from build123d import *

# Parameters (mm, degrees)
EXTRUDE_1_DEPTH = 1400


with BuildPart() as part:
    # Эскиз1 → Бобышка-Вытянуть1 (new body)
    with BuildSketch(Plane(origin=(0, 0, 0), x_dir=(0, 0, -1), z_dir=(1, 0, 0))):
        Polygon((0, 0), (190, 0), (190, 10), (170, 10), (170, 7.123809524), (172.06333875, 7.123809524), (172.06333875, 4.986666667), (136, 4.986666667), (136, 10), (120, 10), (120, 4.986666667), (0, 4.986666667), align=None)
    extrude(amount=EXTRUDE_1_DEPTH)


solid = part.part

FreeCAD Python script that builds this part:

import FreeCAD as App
import Part
import Sketcher

V = App.Vector
Q = App.Units.Quantity


def add_polygon(sketch, points):
    """Adds a closed chain of lines whose ends are joined by coincident constraints."""
    first, n = sketch.GeometryCount, len(points)
    for a, b in zip(points, points[1:] + points[:1]):
        sketch.addGeometry(Part.LineSegment(App.Vector(*a, 0), App.Vector(*b, 0)), False)
    for i in range(n):
        sketch.addConstraint(Sketcher.Constraint("Coincident", first + i, 2, first + (i + 1) % n, 1))

doc = App.newDocument("Part")
body = doc.addObject("PartDesign::Body", "Body")

# Sketch on YZ plane
sketch1 = doc.addObject("Sketcher::SketchObject", "Sketch")
body.addObject(sketch1)
sketch1.AttachmentSupport = (doc.YZ_Plane, [""])
sketch1.MapMode = "FlatFace"
add_polygon(sketch1, [(0, 0), (0, -190), (10, -190), (10, -170), (7.1, -170), (7.1, -172.1), (5, -172.1), (5, -136), (10, -136), (10, -120), (5, -120), (5, 0)])  # lines 0-11
sketch1.addConstraint(Sketcher.Constraint("Vertical", 0))
sketch1.addConstraint(Sketcher.Constraint("Horizontal", 1))
sketch1.addConstraint(Sketcher.Constraint("Vertical", 2))
sketch1.addConstraint(Sketcher.Constraint("Horizontal", 3))
sketch1.addConstraint(Sketcher.Constraint("Vertical", 4))
sketch1.addConstraint(Sketcher.Constraint("Horizontal", 5))
sketch1.addConstraint(Sketcher.Constraint("Vertical", 6))
sketch1.addConstraint(Sketcher.Constraint("Horizontal", 7))
sketch1.addConstraint(Sketcher.Constraint("Vertical", 8))
sketch1.addConstraint(Sketcher.Constraint("Horizontal", 9))
sketch1.addConstraint(Sketcher.Constraint("Vertical", 10))
sketch1.addConstraint(Sketcher.Constraint("Horizontal", 11))
sketch1.addConstraint(Sketcher.Constraint("Coincident", 11, 2, -1, 1))
sketch1.addConstraint(Sketcher.Constraint("Vertical", 2, 2, 7, 2))
sketch1.addConstraint(Sketcher.Constraint("Vertical", 6, 2, 9, 2))
sketch1.addConstraint(Sketcher.Constraint("DistanceX", 1, 1, 1, 2, Q("10 mm")))
sketch1.addConstraint(Sketcher.Constraint("DistanceY", 0, 2, 0, 1, Q("190 mm")))
sketch1.addConstraint(Sketcher.Constraint("DistanceY", 2, 1, 2, 2, Q("20 mm")))
sketch1.addConstraint(Sketcher.Constraint("DistanceY", 8, 1, 8, 2, Q("16 mm")))
sketch1.addConstraint(Sketcher.Constraint("DistanceY", 10, 1, 10, 2, Q("120 mm")))
sketch1.addConstraint(Sketcher.Constraint("DistanceX", 3, 2, 3, 1, Q("2.87619 mm")))
sketch1.addConstraint(Sketcher.Constraint("DistanceY", 4, 2, 4, 1, Q("2.063339 mm")))
sketch1.addConstraint(Sketcher.Constraint("DistanceX", 5, 2, 5, 1, Q("2.137143 mm")))
pad1 = doc.addObject("PartDesign::Pad", "Pad")
body.addObject(pad1)
pad1.Profile = sketch1
pad1.Length = 1400

doc.recompute()
